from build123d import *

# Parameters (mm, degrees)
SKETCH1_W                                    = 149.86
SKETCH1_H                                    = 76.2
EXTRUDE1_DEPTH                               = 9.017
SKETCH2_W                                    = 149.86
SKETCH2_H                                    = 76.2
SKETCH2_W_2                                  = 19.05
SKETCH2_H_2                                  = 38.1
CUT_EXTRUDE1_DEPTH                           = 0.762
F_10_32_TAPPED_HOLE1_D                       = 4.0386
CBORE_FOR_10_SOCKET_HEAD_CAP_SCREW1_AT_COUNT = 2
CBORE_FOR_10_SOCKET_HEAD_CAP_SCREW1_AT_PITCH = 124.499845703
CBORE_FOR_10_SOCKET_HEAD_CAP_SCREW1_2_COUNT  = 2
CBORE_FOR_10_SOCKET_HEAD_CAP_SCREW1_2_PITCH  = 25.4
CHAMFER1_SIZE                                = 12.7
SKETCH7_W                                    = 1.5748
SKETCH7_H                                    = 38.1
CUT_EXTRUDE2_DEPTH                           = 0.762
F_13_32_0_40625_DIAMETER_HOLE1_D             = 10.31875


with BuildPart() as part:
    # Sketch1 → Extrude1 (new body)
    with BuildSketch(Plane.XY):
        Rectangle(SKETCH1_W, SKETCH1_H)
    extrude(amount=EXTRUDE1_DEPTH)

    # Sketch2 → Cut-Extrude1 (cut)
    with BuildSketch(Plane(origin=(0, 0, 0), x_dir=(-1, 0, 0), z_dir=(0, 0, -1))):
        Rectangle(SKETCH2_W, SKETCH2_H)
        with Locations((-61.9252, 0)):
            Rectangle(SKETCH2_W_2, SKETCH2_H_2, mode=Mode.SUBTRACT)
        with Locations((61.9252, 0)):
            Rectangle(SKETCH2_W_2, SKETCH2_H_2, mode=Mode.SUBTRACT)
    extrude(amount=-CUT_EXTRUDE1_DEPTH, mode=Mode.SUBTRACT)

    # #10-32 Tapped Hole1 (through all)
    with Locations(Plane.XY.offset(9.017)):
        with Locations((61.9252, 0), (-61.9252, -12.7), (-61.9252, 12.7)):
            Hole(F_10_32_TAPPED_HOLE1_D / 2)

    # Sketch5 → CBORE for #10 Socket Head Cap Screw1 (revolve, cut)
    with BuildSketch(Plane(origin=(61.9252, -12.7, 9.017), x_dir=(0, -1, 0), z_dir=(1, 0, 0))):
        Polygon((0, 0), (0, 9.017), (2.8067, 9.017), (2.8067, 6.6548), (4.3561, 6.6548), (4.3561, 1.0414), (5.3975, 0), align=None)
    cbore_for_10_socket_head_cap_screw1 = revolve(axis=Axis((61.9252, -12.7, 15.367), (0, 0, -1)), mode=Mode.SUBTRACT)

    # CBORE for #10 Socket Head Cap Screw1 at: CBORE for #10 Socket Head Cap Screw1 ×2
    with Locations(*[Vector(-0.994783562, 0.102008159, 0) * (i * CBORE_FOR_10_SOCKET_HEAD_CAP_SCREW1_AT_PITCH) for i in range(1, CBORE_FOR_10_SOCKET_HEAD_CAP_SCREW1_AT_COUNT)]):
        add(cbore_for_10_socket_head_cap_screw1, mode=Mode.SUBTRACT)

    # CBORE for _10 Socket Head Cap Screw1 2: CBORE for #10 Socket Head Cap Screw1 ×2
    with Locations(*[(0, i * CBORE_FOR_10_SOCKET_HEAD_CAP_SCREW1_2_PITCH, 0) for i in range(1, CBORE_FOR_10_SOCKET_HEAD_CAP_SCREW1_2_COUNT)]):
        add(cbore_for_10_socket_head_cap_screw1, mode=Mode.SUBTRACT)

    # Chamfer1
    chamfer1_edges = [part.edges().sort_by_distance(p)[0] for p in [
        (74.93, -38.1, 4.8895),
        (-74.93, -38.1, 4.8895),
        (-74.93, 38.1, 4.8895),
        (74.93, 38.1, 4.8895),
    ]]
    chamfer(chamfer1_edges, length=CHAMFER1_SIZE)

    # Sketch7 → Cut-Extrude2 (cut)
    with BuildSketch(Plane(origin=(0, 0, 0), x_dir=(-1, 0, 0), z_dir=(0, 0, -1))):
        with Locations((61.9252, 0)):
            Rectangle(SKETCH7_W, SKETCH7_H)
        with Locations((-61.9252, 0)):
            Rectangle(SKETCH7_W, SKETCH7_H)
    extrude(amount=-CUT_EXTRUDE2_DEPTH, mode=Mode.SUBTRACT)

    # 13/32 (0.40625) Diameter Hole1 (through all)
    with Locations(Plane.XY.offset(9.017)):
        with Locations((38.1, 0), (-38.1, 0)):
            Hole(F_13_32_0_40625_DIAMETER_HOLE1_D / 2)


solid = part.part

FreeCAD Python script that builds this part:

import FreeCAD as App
import Part
import Sketcher

V = App.Vector
Q = App.Units.Quantity


def edges_at(feature, points):
    """Names of the edges that pass closest to the given points."""
    edges = feature.Shape.Edges
    near = lambda p: min(range(len(edges)), key=lambda i: edges[i].distToShape(Part.Vertex(*p))[0])
    return sorted({f"Edge{near(p) + 1}" for p in points})


def add_polygon(sketch, points):
    """Adds a closed chain of lines whose ends are joined by coincident constraints."""
    first, n = sketch.GeometryCount, len(points)
    for a, b in zip(points, points[1:] + points[:1]):
        sketch.addGeometry(Part.LineSegment(App.Vector(*a, 0), App.Vector(*b, 0)), False)
    for i in range(n):
        sketch.addConstraint(Sketcher.Constraint("Coincident", first + i, 2, first + (i + 1) % n, 1))

doc = App.newDocument("Part")
body = doc.addObject("PartDesign::Body", "Body")

sketch1 = doc.addObject("Sketcher::SketchObject", "Sketch")
body.addObject(sketch1)
sketch1.AttachmentSupport = (doc.XY_Plane, [""])
sketch1.MapMode = "FlatFace"
add_polygon(sketch1, [(-75, 38), (-75, -38), (75, -38), (75, 38)])
sketch1.addConstraint([
    Sketcher.Constraint("Vertical", 0),
    Sketcher.Constraint("Horizontal", 1),
    Sketcher.Constraint("Vertical", 2),
    Sketcher.Constraint("Horizontal", 3),
    Sketcher.Constraint("Symmetric", 0, 2, 2, 2, -1, 1),
    Sketcher.Constraint("DistanceY", 0, 2, 0, 1, Q("3 in")),
    Sketcher.Constraint("DistanceX", 1, 1, 1, 2, Q("5.9 in")),
])
pad1 = doc.addObject("PartDesign::Pad", "Pad")
body.addObject(pad1)
pad1.Profile = sketch1
pad1.Length = Q("0.355 in")

sketch2 = doc.addObject("Sketcher::SketchObject", "Sketch001")
body.addObject(sketch2)
sketch2.AttachmentSupport = (doc.XY_Plane, [""])
sketch2.MapMode = "FlatFace"
add_polygon(sketch2, [(75, 38), (75, -38), (-75, -38), (-75, 38)])
add_polygon(sketch2, [(52, -19), (71, -19), (71, 19), (52, 19)])
add_polygon(sketch2, [(-71, -19), (-52, -19), (-52, 19), (-71, 19)])
sketch2.addConstraint([
    Sketcher.Constraint("Vertical", 0),
    Sketcher.Constraint("Horizontal", 1),
    Sketcher.Constraint("Vertical", 2),
    Sketcher.Constraint("Horizontal", 3),
    Sketcher.Constraint("Horizontal", 4),
    Sketcher.Constraint("Vertical", 5),
    Sketcher.Constraint("Horizontal", 6),
    Sketcher.Constraint("Vertical", 7),
    Sketcher.Constraint("Horizontal", 8),
    Sketcher.Constraint("Vertical", 9),
    Sketcher.Constraint("Horizontal", 10),
    Sketcher.Constraint("Vertical", 11),
    Sketcher.Constraint("Symmetric", 0, 2, 2, 2, -1, 1),
    Sketcher.Constraint("Symmetric", 6, 2, 8, 2, -1, 1),
    Sketcher.Constraint("Symmetric", 4, 2, 10, 2, -1, 1),
    Sketcher.Constraint("Horizontal", 7, 2, 8, 2),
    Sketcher.Constraint("DistanceY", 0, 2, 0, 1, Q("3 in")),
    Sketcher.Constraint("DistanceX", 1, 2, 1, 1, Q("5.9 in")),
    Sketcher.Constraint("DistanceY", 5, 1, 5, 2, Q("1.5 in")),
    Sketcher.Constraint("DistanceX", 4, 1, 4, 2, Q("0.75 in")),
    Sketcher.Constraint("DistanceX", -1, 1, 4, 2, Q("2.813 in")),
])
pocket1 = doc.addObject("PartDesign::Pocket", "Pocket")
body.addObject(pocket1)
pocket1.Profile = sketch2
pocket1.Length = Q("0.03 in")
pocket1.Reversed = True

sketch3 = doc.addObject("Sketcher::SketchObject", "Sketch002")
body.addObject(sketch3)
sketch3.AttachmentSupport = (doc.XY_Plane, [""])
sketch3.MapMode = "FlatFace"
sketch3.AttachmentOffset = App.Placement(V(0, 0, 0.355 * 25.4), App.Rotation())
sketch3.addGeometry([
    Part.Circle(V(61.9, 0, 0), V(0, 0, 1), 2),
    Part.Circle(V(-61.9, -12.7, 0), V(0, 0, 1), 2),
    Part.Circle(V(-61.9, 12.7, 0), V(0, 0, 1), 2),
], False)
sketch3.addConstraint([
    Sketcher.Constraint("Equal", 0, 1),
    Sketcher.Constraint("Equal", 1, 2),
    Sketcher.Constraint("Symmetric", 1, 3, 2, 3, -1),
    Sketcher.Constraint("PointOnObject", 0, 3, -1),
    Sketcher.Constraint("Diameter", 0, Q("0.159 in")),
    Sketcher.Constraint("DistanceY", 1, 3, 2, 3, Q("1 in")),
    Sketcher.Constraint("DistanceX", -1, 1, 0, 3, Q("2.438 in")),
    Sketcher.Constraint("DistanceX", 1, 3, -1, 1, Q("2.438 in")),
])
doc.recompute()
hole = doc.addObject("PartDesign::Hole", "Hole")
body.addObject(hole)
hole.Profile = sketch3
hole.ThreadType = "None"
hole.Diameter = Q("0.159 in")
hole.DepthType = "ThroughAll"

sketch4 = doc.addObject("Sketcher::SketchObject", "Sketch003")
body.addObject(sketch4)
sketch4.AttachmentSupport = (doc.YZ_Plane, [""])
sketch4.MapMode = "FlatFace"
sketch4.AttachmentOffset = App.Placement(V(0, 0, 2.438 * 25.4), App.Rotation())
add_polygon(sketch4, [(-12.7, 0), (-12.7, 9), (-18.1, 9), (-17.1, 8), (-17.1, 2.4), (-15.5, 2.4), (-15.5, 0)])
sketch4.addGeometry(Part.LineSegment(V(-12.7, 9, 0), V(-12.7, 0, 0)), True)
sketch4.addConstraint([
    Sketcher.Constraint("Vertical", 0),
    Sketcher.Constraint("Horizontal", 1),
    Sketcher.Constraint("Vertical", 3),
    Sketcher.Constraint("Horizontal", 4),
    Sketcher.Constraint("Vertical", 5),
    Sketcher.Constraint("Horizontal", 6),
    Sketcher.Constraint("Vertical", 7),
    Sketcher.Constraint("Coincident", 7, 1, 0, 2),
    Sketcher.Constraint("PointOnObject", 5, 2, -1),
    Sketcher.Constraint("PointOnObject", 7, 2, -1),
    Sketcher.Constraint("Angle", 2, Q("-45 deg")),
    Sketcher.Constraint("DistanceX", 0, 2, -1, 1, Q("0.5 in")),
    Sketcher.Constraint("DistanceX", 4, 1, 4, 2, Q("0.061 in")),
    Sketcher.Constraint("DistanceY", 0, 1, 0, 2, Q("0.355 in")),
    Sketcher.Constraint("DistanceY", 3, 2, 3, 1, Q("0.221 in")),
    Sketcher.Constraint("DistanceY", 5, 2, 5, 1, Q("0.093 in")),
    Sketcher.Constraint("DistanceX", 1, 2, 1, 1, Q("0.2125 in")),
])
groove = doc.addObject("PartDesign::Groove", "Groove")
body.addObject(groove)
groove.Profile = sketch4
groove.ReferenceAxis = (sketch4, ["Axis0"])
groove.Angle = 360
doc.recompute()

datumline = doc.addObject("PartDesign::Line", "DatumLine")
body.addObject(datumline)
datumline.Placement = App.Placement(V(0, 0, 0), App.Rotation(V(0, 0, 1), V(-0.994783562, 0.102008159, 0)))
linearpattern = doc.addObject("PartDesign::LinearPattern", "LinearPattern")
body.addObject(linearpattern)
linearpattern.Originals = [groove]
linearpattern.Direction = (datumline, [""])
linearpattern.Mode = "offset"
linearpattern.Offset = 124.499846
linearpattern.Occurrences = 2
body.Tip = linearpattern
doc.recompute()

linearpattern2 = doc.addObject("PartDesign::LinearPattern", "LinearPattern001")
body.addObject(linearpattern2)
linearpattern2.Originals = [groove]
linearpattern2.Direction = (doc.Y_Axis, [""])
linearpattern2.Mode = "offset"
linearpattern2.Offset = Q("1 in")
linearpattern2.Occurrences = 2
body.Tip = linearpattern2
doc.recompute()

chamfer = doc.addObject("PartDesign::Chamfer", "Chamfer")
body.addObject(chamfer)
chamfer.Base = (linearpattern2, edges_at(linearpattern2, [
    (74.93, -38.1, 4.889),
    (-74.93, -38.1, 4.889),
    (-74.93, 38.1, 4.889),
    (74.93, 38.1, 4.889),
]))
chamfer.Size = Q("0.5 in")

sketch5 = doc.addObject("Sketcher::SketchObject", "Sketch004")
body.addObject(sketch5)
sketch5.AttachmentSupport = (doc.XY_Plane, [""])
sketch5.MapMode = "FlatFace"
add_polygon(sketch5, [(-61.1, 19.1), (-61.1, -19.1), (-62.7, -19.1), (-62.7, 19.1)])
add_polygon(sketch5, [(62.7, 19.1), (62.7, -19.1), (61.1, -19.1), (61.1, 19.1)])
sketch5.addConstraint([
    Sketcher.Constraint("Vertical", 0),
    Sketcher.Constraint("Horizontal", 1),
    Sketcher.Constraint("Vertical", 2),
    Sketcher.Constraint("Horizontal", 3),
    Sketcher.Constraint("Vertical", 4),
    Sketcher.Constraint("Horizontal", 5),
    Sketcher.Constraint("Vertical", 6),
    Sketcher.Constraint("Horizontal", 7),
    Sketcher.Constraint("Symmetric", 2, 2, 4, 2, -1, 1),
    Sketcher.Constraint("Symmetric", 0, 2, 6, 2, -1, 1),
    Sketcher.Constraint("Horizontal", 1, 2, 4, 2),
    Sketcher.Constraint("DistanceY", 0, 2, 0, 1, Q("1.5 in")),
    Sketcher.Constraint("DistanceX", 1, 2, 1, 1, Q("0.062 in")),
    Sketcher.Constraint("DistanceX", 0, 2, -1, 1, Q("2.407 in")),
])
pocket2 = doc.addObject("PartDesign::Pocket", "Pocket001")
body.addObject(pocket2)
pocket2.Profile = sketch5
pocket2.Length = Q("0.03 in")
pocket2.Reversed = True

sketch6 = doc.addObject("Sketcher::SketchObject", "Sketch005")
body.addObject(sketch6)
sketch6.AttachmentSupport = (doc.XY_Plane, [""])
sketch6.MapMode = "FlatFace"
sketch6.AttachmentOffset = App.Placement(V(0, 0, 0.355 * 25.4), App.Rotation())
sketch6.addGeometry([
    Part.Circle(V(38, 0, 0), V(0, 0, 1), 5),
    Part.Circle(V(-38, 0, 0), V(0, 0, 1), 5),
], False)
sketch6.addConstraint([
    Sketcher.Constraint("Equal", 0, 1),
    Sketcher.Constraint("Symmetric", 0, 3, 1, 3, -1, 1),
    Sketcher.Constraint("PointOnObject", 0, 3, -1),
    Sketcher.Constraint("Diameter", 0, Q("0.40625 in")),
    Sketcher.Constraint("DistanceX", 1, 3, 0, 3, Q("3 in")),
])
doc.recompute()
hole2 = doc.addObject("PartDesign::Hole", "Hole001")
body.addObject(hole2)
hole2.Profile = sketch6
hole2.ThreadType = "None"
hole2.Diameter = Q("0.40625 in")
hole2.DepthType = "ThroughAll"

doc.recompute()
